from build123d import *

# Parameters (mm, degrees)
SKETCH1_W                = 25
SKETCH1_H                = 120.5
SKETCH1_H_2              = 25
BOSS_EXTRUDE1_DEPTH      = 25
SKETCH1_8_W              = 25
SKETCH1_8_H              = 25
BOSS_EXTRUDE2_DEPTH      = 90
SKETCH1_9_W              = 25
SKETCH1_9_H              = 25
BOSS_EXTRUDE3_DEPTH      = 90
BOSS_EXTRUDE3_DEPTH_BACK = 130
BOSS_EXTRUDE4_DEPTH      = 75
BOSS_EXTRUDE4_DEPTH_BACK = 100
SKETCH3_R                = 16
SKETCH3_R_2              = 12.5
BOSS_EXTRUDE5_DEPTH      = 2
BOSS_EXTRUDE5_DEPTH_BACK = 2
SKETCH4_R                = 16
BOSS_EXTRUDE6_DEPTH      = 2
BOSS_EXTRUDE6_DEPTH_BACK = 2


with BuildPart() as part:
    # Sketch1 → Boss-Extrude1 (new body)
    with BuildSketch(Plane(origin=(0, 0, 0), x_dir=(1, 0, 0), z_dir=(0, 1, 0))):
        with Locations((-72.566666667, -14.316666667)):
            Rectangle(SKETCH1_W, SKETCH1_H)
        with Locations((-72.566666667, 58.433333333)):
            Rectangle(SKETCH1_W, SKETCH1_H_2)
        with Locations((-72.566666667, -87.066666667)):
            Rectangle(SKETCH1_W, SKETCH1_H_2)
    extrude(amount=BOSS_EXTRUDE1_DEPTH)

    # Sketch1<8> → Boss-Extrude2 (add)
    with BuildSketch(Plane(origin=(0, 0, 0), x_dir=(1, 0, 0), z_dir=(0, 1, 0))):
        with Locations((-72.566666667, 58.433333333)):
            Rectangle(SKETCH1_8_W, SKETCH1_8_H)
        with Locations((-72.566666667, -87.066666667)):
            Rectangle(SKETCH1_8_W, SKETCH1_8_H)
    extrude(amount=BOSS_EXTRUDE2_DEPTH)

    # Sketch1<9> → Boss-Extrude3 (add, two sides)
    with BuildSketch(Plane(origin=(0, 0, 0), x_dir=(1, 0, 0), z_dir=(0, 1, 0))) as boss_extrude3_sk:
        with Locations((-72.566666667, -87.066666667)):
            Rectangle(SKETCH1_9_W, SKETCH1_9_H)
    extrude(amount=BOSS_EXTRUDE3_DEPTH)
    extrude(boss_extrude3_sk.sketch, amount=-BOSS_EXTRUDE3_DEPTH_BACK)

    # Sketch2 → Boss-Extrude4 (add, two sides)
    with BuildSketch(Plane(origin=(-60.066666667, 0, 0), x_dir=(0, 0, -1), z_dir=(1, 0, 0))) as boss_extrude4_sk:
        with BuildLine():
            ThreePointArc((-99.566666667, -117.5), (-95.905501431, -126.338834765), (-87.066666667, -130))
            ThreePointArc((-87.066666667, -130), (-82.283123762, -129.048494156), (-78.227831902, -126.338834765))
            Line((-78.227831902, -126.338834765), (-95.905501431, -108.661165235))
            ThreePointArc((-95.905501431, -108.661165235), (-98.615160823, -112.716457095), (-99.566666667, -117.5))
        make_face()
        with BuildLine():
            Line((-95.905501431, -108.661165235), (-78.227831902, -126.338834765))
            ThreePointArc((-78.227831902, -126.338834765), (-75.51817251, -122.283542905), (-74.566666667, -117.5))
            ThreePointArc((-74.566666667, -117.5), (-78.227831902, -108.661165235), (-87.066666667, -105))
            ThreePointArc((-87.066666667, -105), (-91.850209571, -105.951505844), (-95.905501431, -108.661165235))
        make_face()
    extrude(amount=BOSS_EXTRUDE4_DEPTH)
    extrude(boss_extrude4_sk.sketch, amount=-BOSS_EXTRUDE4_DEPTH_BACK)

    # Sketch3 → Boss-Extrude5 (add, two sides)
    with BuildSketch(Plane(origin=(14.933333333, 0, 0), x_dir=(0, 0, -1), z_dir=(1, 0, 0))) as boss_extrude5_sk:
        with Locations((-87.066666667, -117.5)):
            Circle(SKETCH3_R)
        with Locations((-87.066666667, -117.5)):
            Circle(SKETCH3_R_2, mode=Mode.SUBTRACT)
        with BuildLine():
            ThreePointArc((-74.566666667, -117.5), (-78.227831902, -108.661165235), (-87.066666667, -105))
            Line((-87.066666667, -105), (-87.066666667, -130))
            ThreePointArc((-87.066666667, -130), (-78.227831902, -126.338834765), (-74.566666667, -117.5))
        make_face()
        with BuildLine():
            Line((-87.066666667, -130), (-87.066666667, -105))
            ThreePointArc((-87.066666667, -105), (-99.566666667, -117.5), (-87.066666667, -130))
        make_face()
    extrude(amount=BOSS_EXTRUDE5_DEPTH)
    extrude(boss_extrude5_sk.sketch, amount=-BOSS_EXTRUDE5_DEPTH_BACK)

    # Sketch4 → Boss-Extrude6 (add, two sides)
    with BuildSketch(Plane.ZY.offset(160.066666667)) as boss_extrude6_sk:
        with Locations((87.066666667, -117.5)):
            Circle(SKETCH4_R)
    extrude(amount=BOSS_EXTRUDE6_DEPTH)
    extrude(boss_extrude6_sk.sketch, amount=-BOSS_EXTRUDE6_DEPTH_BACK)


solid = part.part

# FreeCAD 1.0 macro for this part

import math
import FreeCAD as App
import Part
import Sketcher

V = App.Vector
Q = App.Units.Quantity

doc = App.newDocument("Part")
body = doc.addObject("PartDesign::Body", "Body")

sketch1 = body.newObject("Sketcher::SketchObject", "Sketch")
sketch1.AttachmentSupport = (doc.getObject("XZ_Plane"), [""])
sketch1.MapMode = "FlatFace"
sketch1.addGeometry(Part.LineSegment(V(-60, -71, 0), V(-85, -71, 0)), False)
sketch1.addGeometry(Part.LineSegment(V(-85, -71, 0), V(-85, 100, 0)), False)
sketch1.addGeometry(Part.LineSegment(V(-85, 100, 0), V(-60, 100, 0)), False)
sketch1.addGeometry(Part.LineSegment(V(-60, 100, 0), V(-60, -71, 0)), False)
sketch1.addConstraint(Sketcher.Constraint("Coincident", 0, 2, 1, 1))
sketch1.addConstraint(Sketcher.Constraint("Coincident", 1, 2, 2, 1))
sketch1.addConstraint(Sketcher.Constraint("Coincident", 2, 2, 3, 1))
sketch1.addConstraint(Sketcher.Constraint("Coincident", 3, 2, 0, 1))
sketch1.addConstraint(Sketcher.Constraint("Horizontal", 0))
sketch1.addConstraint(Sketcher.Constraint("Vertical", 1))
sketch1.addConstraint(Sketcher.Constraint("Horizontal", 2))
sketch1.addConstraint(Sketcher.Constraint("Vertical", 3))
sketch1.addConstraint(Sketcher.Constraint("DistanceX", 0, 2, 0, 1, Q("25 mm")))
sketch1.addConstraint(Sketcher.Constraint("DistanceY", 1, 1, 1, 2, Q("170.5 mm")))
sketch1.addConstraint(Sketcher.Constraint("DistanceX", 0, 2, -1, 1, Q("85.066667 mm")))
sketch1.addConstraint(Sketcher.Constraint("DistanceY", 0, 2, -1, 1, Q("70.933333 mm")))
pad1 = body.newObject("PartDesign::Pad", "Pad")
pad1.Profile = sketch1
pad1.Length = 25
pad1.Reversed = True

sketch2 = body.newObject("Sketcher::SketchObject", "Sketch001")
sketch2.AttachmentSupport = (doc.getObject("XZ_Plane"), [""])
sketch2.MapMode = "FlatFace"
sketch2.addGeometry(Part.LineSegment(V(-85, -71, 0), V(-85, -46, 0)), False)
sketch2.addGeometry(Part.LineSegment(V(-85, -46, 0), V(-60, -46, 0)), False)
sketch2.addGeometry(Part.LineSegment(V(-60, -46, 0), V(-60, -71, 0)), False)
sketch2.addGeometry(Part.LineSegment(V(-60, -71, 0), V(-85, -71, 0)), False)
sketch2.addGeometry(Part.LineSegment(V(-85, 75, 0), V(-85, 100, 0)), False)
sketch2.addGeometry(Part.LineSegment(V(-85, 100, 0), V(-60, 100, 0)), False)
sketch2.addGeometry(Part.LineSegment(V(-60, 100, 0), V(-60, 75, 0)), False)
sketch2.addGeometry(Part.LineSegment(V(-60, 75, 0), V(-85, 75, 0)), False)
sketch2.addConstraint(Sketcher.Constraint("Coincident", 0, 2, 1, 1))
sketch2.addConstraint(Sketcher.Constraint("Coincident", 1, 2, 2, 1))
sketch2.addConstraint(Sketcher.Constraint("Coincident", 2, 2, 3, 1))
sketch2.addConstraint(Sketcher.Constraint("Coincident", 3, 2, 0, 1))
sketch2.addConstraint(Sketcher.Constraint("Coincident", 4, 2, 5, 1))
sketch2.addConstraint(Sketcher.Constraint("Coincident", 5, 2, 6, 1))
sketch2.addConstraint(Sketcher.Constraint("Coincident", 6, 2, 7, 1))
sketch2.addConstraint(Sketcher.Constraint("Coincident", 7, 2, 4, 1))
sketch2.addConstraint(Sketcher.Constraint("Vertical", 0))
sketch2.addConstraint(Sketcher.Constraint("Horizontal", 1))
sketch2.addConstraint(Sketcher.Constraint("Vertical", 2))
sketch2.addConstraint(Sketcher.Constraint("Horizontal", 3))
sketch2.addConstraint(Sketcher.Constraint("Vertical", 4))
sketch2.addConstraint(Sketcher.Constraint("Horizontal", 5))
sketch2.addConstraint(Sketcher.Constraint("Vertical", 6))
sketch2.addConstraint(Sketcher.Constraint("Horizontal", 7))
sketch2.addConstraint(Sketcher.Constraint("Vertical", 3, 2, 4, 2))
sketch2.addConstraint(Sketcher.Constraint("Vertical", 2, 2, 5, 2))
sketch2.addConstraint(Sketcher.Constraint("Equal", 7, 0))
sketch2.addConstraint(Sketcher.Constraint("Equal", 2, 4))
sketch2.addConstraint(Sketcher.Constraint("DistanceX", 1, 1, 1, 2, Q("25 mm")))
sketch2.addConstraint(Sketcher.Constraint("DistanceY", 0, 2, 4, 2, Q("145.5 mm")))
sketch2.addConstraint(Sketcher.Constraint("DistanceX", 0, 2, -1, 1, Q("85.066667 mm")))
sketch2.addConstraint(Sketcher.Constraint("DistanceY", 0, 2, -1, 1, Q("45.933333 mm")))
pad2 = body.newObject("PartDesign::Pad", "Pad001")
pad2.Profile = sketch2
pad2.Length = 90
pad2.Reversed = True

sketch3 = body.newObject("Sketcher::SketchObject", "Sketch002")
sketch3.AttachmentSupport = (doc.getObject("XZ_Plane"), [""])
sketch3.MapMode = "FlatFace"
sketch3.addGeometry(Part.LineSegment(V(-85, 75, 0), V(-85, 100, 0)), False)
sketch3.addGeometry(Part.LineSegment(V(-85, 100, 0), V(-60, 100, 0)), False)
sketch3.addGeometry(Part.LineSegment(V(-60, 100, 0), V(-60, 75, 0)), False)
sketch3.addGeometry(Part.LineSegment(V(-60, 75, 0), V(-85, 75, 0)), False)
sketch3.addConstraint(Sketcher.Constraint("Coincident", 0, 2, 1, 1))
sketch3.addConstraint(Sketcher.Constraint("Coincident", 1, 2, 2, 1))
sketch3.addConstraint(Sketcher.Constraint("Coincident", 2, 2, 3, 1))
sketch3.addConstraint(Sketcher.Constraint("Coincident", 3, 2, 0, 1))
sketch3.addConstraint(Sketcher.Constraint("Vertical", 0))
sketch3.addConstraint(Sketcher.Constraint("Horizontal", 1))
sketch3.addConstraint(Sketcher.Constraint("Vertical", 2))
sketch3.addConstraint(Sketcher.Constraint("Horizontal", 3))
sketch3.addConstraint(Sketcher.Constraint("Equal", 3, 0))
sketch3.addConstraint(Sketcher.Constraint("DistanceX", 1, 1, 1, 2, Q("25 mm")))
sketch3.addConstraint(Sketcher.Constraint("DistanceX", 0, 2, -1, 1, Q("85.066667 mm")))
sketch3.addConstraint(Sketcher.Constraint("DistanceY", -1, 1, 0, 2, Q("99.566667 mm")))
pad3 = body.newObject("PartDesign::Pad", "Pad002")
pad3.Profile = sketch3
pad3.Type = "TwoLengths"
pad3.Length = 90
pad3.Length2 = 130
pad3.Reversed = True

sketch4 = body.newObject("Sketcher::SketchObject", "Sketch003")
sketch4.AttachmentSupport = (doc.getObject("YZ_Plane"), [""])
sketch4.MapMode = "FlatFace"
sketch4.AttachmentOffset = App.Placement(V(0, 0, -60.066667), App.Rotation())
sketch4.addGeometry(Part.ArcOfCircle(Part.Circle(V(-117, 87, 0), V(0, 0, 1), 13), math.radians(-180), math.radians(-135)), False)
sketch4.addGeometry(Part.ArcOfCircle(Part.Circle(V(-118, 87, 0), V(0, 0, 1), 12), math.radians(-135), math.radians(-90)), False)
sketch4.addGeometry(Part.ArcOfCircle(Part.Circle(V(-117, 87, 0), V(0, 0, 1), 12), math.radians(-90), math.radians(0)), False)
sketch4.addGeometry(Part.ArcOfCircle(Part.Circle(V(-118, 87, 0), V(0, 0, 1), 13), math.radians(0), math.radians(45)), False)
sketch4.addGeometry(Part.ArcOfCircle(Part.Circle(V(-118, 87, 0), V(0, 0, 1), 12), math.radians(45), math.radians(90)), False)
sketch4.addGeometry(Part.ArcOfCircle(Part.Circle(V(-117, 87, 0), V(0, 0, 1), 13), math.radians(90), math.radians(180)), False)
sketch4.addConstraint(Sketcher.Constraint("Tangent", 0, 2, 1, 1))
sketch4.addConstraint(Sketcher.Constraint("Tangent", 1, 2, 2, 1))
sketch4.addConstraint(Sketcher.Constraint("Tangent", 2, 2, 3, 1))
sketch4.addConstraint(Sketcher.Constraint("Tangent", 3, 2, 4, 1))
sketch4.addConstraint(Sketcher.Constraint("Tangent", 4, 2, 5, 1))
sketch4.addConstraint(Sketcher.Constraint("Tangent", 5, 2, 0, 1))
sketch4.addConstraint(Sketcher.Constraint("Coincident", 2, 3, 0, 3))
sketch4.addConstraint(Sketcher.Constraint("Equal", 2, 3))
sketch4.addConstraint(Sketcher.Constraint("Horizontal", 5, 3, 2, 2))
sketch4.addConstraint(Sketcher.Constraint("Horizontal", 2, 2, 5, 2))
sketch4.addConstraint(Sketcher.Constraint("Vertical", 5, 3, 1, 2))
sketch4.addConstraint(Sketcher.Constraint("Vertical", 1, 2, 4, 2))
sketch4.addConstraint(Sketcher.Constraint("Radius", 0, Q("12.5 mm")))
sketch4.addConstraint(Sketcher.Constraint("DistanceX", 2, 2, -1, 1, Q("105 mm")))
sketch4.addConstraint(Sketcher.Constraint("DistanceY", -1, 1, 3, 2, Q("95.905501 mm")))
sketch4.addConstraint(Sketcher.Constraint("DistanceY", -1, 1, 0, 2, Q("78.227832 mm")))
sketch4.addConstraint(Sketcher.Constraint("DistanceY", -1, 1, 0, 3, Q("87.066667 mm")))
pad4 = body.newObject("PartDesign::Pad", "Pad003")
pad4.Profile = sketch4
pad4.Type = "TwoLengths"
pad4.Length = 75
pad4.Length2 = 100

sketch5 = body.newObject("Sketcher::SketchObject", "Sketch004")
sketch5.AttachmentSupport = (doc.getObject("YZ_Plane"), [""])
sketch5.MapMode = "FlatFace"
sketch5.AttachmentOffset = App.Placement(V(0, 0, 14.933333), App.Rotation())
sketch5.addGeometry(Part.Circle(V(-118, 87, 0), V(0, 0, 1), 16), False)
sketch5.addConstraint(Sketcher.Constraint("Diameter", 0, Q("32 mm")))
sketch5.addConstraint(Sketcher.Constraint("DistanceX", 0, 3, -1, 1, Q("117.5 mm")))
sketch5.addConstraint(Sketcher.Constraint("DistanceY", -1, 1, 0, 3, Q("87.066667 mm")))
pad5 = body.newObject("PartDesign::Pad", "Pad004")
pad5.Profile = sketch5
pad5.Type = "TwoLengths"
pad5.Length = 2
pad5.Length2 = 2

sketch6 = body.newObject("Sketcher::SketchObject", "Sketch005")
sketch6.AttachmentSupport = (doc.getObject("YZ_Plane"), [""])
sketch6.MapMode = "FlatFace"
sketch6.AttachmentOffset = App.Placement(V(0, 0, -160.066667), App.Rotation())
sketch6.addGeometry(Part.Circle(V(-118, 87, 0), V(0, 0, 1), 16), False)
sketch6.addConstraint(Sketcher.Constraint("Diameter", 0, Q("32 mm")))
sketch6.addConstraint(Sketcher.Constraint("DistanceX", 0, 3, -1, 1, Q("117.5 mm")))
sketch6.addConstraint(Sketcher.Constraint("DistanceY", -1, 1, 0, 3, Q("87.066667 mm")))
pad6 = body.newObject("PartDesign::Pad", "Pad005")
pad6.Profile = sketch6
pad6.Type = "TwoLengths"
pad6.Length = 2
pad6.Length2 = 2
pad6.Reversed = True

doc.recompute()
